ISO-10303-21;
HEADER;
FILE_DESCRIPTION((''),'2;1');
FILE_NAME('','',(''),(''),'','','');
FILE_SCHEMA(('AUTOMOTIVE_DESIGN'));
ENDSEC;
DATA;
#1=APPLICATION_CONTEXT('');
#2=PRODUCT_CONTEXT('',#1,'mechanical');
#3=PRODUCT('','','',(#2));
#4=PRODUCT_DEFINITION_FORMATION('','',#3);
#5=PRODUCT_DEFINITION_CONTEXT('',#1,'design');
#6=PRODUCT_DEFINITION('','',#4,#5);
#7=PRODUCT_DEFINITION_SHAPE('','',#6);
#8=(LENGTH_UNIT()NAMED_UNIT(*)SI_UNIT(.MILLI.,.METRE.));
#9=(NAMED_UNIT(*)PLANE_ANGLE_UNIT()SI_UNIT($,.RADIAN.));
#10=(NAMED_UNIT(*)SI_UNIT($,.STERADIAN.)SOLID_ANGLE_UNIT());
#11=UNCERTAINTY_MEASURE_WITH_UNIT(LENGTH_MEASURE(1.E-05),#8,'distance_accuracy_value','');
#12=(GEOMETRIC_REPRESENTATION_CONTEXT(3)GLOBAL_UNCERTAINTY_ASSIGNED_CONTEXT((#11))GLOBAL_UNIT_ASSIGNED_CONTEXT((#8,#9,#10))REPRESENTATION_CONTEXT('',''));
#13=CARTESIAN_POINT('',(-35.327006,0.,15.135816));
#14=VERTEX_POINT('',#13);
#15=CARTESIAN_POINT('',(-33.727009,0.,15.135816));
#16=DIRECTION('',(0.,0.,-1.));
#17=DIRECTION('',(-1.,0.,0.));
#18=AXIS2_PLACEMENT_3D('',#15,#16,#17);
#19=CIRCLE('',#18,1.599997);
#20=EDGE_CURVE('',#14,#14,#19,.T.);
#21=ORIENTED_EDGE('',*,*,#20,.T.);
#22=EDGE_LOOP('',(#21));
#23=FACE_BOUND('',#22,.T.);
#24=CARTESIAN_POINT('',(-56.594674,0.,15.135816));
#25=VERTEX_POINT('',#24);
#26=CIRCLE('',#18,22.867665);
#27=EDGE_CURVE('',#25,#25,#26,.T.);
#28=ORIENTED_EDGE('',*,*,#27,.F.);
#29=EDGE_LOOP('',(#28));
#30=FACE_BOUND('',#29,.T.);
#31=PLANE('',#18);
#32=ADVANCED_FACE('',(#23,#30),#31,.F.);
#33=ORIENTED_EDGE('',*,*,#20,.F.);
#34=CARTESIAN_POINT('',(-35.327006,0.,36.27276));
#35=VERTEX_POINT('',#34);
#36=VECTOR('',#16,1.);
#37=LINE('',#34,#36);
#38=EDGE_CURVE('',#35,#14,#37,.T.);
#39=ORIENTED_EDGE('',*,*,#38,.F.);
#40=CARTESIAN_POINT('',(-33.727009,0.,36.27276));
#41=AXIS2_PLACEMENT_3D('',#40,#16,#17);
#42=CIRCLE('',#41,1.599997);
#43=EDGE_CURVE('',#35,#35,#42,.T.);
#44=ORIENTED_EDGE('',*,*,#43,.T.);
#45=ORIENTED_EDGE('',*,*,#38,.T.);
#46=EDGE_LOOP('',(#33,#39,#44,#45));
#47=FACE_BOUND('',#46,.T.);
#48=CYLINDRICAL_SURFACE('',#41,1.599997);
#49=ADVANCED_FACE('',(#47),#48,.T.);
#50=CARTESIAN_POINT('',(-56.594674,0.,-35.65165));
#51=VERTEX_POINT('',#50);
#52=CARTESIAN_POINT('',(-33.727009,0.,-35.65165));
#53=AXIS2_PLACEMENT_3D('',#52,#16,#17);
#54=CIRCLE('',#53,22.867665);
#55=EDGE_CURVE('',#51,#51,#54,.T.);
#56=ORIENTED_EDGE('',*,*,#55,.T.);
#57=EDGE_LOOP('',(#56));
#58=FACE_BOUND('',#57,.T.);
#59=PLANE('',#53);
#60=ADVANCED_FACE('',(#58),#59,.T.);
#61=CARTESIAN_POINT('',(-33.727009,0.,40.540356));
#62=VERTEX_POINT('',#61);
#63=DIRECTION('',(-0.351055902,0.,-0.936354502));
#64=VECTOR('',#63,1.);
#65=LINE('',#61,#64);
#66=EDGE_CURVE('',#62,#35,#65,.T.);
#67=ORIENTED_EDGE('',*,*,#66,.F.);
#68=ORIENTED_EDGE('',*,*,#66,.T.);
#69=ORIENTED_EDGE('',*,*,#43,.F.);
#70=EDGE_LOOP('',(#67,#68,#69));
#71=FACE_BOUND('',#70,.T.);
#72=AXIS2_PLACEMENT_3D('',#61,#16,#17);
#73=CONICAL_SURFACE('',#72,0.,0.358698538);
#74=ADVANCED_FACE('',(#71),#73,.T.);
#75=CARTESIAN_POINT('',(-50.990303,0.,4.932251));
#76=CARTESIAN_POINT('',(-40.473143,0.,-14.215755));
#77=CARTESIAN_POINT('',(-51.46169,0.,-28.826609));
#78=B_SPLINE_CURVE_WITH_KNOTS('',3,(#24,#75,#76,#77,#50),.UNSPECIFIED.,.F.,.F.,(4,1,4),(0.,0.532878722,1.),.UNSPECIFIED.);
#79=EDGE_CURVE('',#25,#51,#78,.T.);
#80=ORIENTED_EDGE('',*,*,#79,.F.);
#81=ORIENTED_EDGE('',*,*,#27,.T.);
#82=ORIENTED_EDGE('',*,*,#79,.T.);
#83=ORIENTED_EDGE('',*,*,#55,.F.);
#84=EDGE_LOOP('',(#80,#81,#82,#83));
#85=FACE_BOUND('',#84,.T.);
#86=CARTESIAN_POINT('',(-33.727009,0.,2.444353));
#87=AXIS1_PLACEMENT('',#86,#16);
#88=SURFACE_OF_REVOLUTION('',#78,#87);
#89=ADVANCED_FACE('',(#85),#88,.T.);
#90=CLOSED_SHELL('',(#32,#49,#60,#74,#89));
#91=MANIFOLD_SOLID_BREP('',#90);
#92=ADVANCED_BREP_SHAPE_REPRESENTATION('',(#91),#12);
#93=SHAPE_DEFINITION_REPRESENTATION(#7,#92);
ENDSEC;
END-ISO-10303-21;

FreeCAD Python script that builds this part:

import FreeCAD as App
import Part
import Sketcher

doc = App.newDocument("Part")
body = doc.addObject("PartDesign::Body", "Body")

sketch1 = doc.addObject("Sketcher::SketchObject", "Sketch")
body.addObject(sketch1)
sketch1.AttachmentSupport = (doc.XZ_Plane, [""])
sketch1.MapMode = "FlatFace"
sketch1.addGeometry(Part.LineSegment(App.Vector(-56.594674, -35.65165, 0), App.Vector(-33.727009, -35.65165, 0)), False)
sketch1.addGeometry(Part.LineSegment(App.Vector(-33.727009, -35.65165, 0), App.Vector(-33.727009, 40.540356, 0)), False)
sketch1.addGeometry(Part.LineSegment(App.Vector(-33.727009, 40.540356, 0), App.Vector(-35.327006, 36.27276, 0)), False)
sketch1.addGeometry(Part.LineSegment(App.Vector(-35.327006, 36.27276, 0), App.Vector(-35.327006, 15.135816, 0)), False)
sketch1.addGeometry(Part.LineSegment(App.Vector(-35.327006, 15.135816, 0), App.Vector(-56.594674, 15.135816, 0)), False)
sketch1.addGeometry(Part.BSplineCurve([App.Vector(-56.594674, 15.135816, 0), App.Vector(-50.990303, 4.932251, 0), App.Vector(-40.473143, -14.215755, 0), App.Vector(-51.46169, -28.826609, 0), App.Vector(-56.594674, -35.65165, 0)], [4, 1, 4], [0, 0.532878722, 1], False, 3, [1, 1, 1, 1, 1], False), False)
sketch1.addGeometry(Part.LineSegment(App.Vector(-33.727009, 40.540356, 0), App.Vector(-33.727009, -35.65165, 0)), True)
sketch1.addConstraint(Sketcher.Constraint("Block", 5))
sketch1.addConstraint(Sketcher.Constraint("Coincident", 0, 2, 1, 1))
sketch1.addConstraint(Sketcher.Constraint("Coincident", 1, 2, 2, 1))
sketch1.addConstraint(Sketcher.Constraint("Coincident", 2, 2, 3, 1))
sketch1.addConstraint(Sketcher.Constraint("Coincident", 3, 2, 4, 1))
sketch1.addConstraint(Sketcher.Constraint("Coincident", 4, 2, 5, 1))
sketch1.addConstraint(Sketcher.Constraint("Coincident", 5, 2, 0, 1))
sketch1.addConstraint(Sketcher.Constraint("Horizontal", 0))
sketch1.addConstraint(Sketcher.Constraint("Vertical", 1))
sketch1.addConstraint(Sketcher.Constraint("Vertical", 3))
sketch1.addConstraint(Sketcher.Constraint("Horizontal", 4))
sketch1.addConstraint(Sketcher.Constraint("Vertical", 6))
sketch1.addConstraint(Sketcher.Constraint("Coincident", 6, 1, 1, 2))
sketch1.addConstraint(Sketcher.Constraint("Equal", 1, 6))
sketch1.addConstraint(Sketcher.Constraint("Distance", 2, 4.557671))
sketch1.addConstraint(Sketcher.Constraint("DistanceX", 0, 1, 0, 2, 22.867665))
sketch1.addConstraint(Sketcher.Constraint("DistanceX", 4, 2, 4, 1, 21.267667))
sketch1.addConstraint(Sketcher.Constraint("DistanceY", 1, 1, 1, 2, 76.192006))
revolution = doc.addObject("PartDesign::Revolution", "Revolution")
body.addObject(revolution)
revolution.Profile = sketch1
revolution.ReferenceAxis = (sketch1, ["Axis0"])
revolution.Angle = 360

doc.recompute()
